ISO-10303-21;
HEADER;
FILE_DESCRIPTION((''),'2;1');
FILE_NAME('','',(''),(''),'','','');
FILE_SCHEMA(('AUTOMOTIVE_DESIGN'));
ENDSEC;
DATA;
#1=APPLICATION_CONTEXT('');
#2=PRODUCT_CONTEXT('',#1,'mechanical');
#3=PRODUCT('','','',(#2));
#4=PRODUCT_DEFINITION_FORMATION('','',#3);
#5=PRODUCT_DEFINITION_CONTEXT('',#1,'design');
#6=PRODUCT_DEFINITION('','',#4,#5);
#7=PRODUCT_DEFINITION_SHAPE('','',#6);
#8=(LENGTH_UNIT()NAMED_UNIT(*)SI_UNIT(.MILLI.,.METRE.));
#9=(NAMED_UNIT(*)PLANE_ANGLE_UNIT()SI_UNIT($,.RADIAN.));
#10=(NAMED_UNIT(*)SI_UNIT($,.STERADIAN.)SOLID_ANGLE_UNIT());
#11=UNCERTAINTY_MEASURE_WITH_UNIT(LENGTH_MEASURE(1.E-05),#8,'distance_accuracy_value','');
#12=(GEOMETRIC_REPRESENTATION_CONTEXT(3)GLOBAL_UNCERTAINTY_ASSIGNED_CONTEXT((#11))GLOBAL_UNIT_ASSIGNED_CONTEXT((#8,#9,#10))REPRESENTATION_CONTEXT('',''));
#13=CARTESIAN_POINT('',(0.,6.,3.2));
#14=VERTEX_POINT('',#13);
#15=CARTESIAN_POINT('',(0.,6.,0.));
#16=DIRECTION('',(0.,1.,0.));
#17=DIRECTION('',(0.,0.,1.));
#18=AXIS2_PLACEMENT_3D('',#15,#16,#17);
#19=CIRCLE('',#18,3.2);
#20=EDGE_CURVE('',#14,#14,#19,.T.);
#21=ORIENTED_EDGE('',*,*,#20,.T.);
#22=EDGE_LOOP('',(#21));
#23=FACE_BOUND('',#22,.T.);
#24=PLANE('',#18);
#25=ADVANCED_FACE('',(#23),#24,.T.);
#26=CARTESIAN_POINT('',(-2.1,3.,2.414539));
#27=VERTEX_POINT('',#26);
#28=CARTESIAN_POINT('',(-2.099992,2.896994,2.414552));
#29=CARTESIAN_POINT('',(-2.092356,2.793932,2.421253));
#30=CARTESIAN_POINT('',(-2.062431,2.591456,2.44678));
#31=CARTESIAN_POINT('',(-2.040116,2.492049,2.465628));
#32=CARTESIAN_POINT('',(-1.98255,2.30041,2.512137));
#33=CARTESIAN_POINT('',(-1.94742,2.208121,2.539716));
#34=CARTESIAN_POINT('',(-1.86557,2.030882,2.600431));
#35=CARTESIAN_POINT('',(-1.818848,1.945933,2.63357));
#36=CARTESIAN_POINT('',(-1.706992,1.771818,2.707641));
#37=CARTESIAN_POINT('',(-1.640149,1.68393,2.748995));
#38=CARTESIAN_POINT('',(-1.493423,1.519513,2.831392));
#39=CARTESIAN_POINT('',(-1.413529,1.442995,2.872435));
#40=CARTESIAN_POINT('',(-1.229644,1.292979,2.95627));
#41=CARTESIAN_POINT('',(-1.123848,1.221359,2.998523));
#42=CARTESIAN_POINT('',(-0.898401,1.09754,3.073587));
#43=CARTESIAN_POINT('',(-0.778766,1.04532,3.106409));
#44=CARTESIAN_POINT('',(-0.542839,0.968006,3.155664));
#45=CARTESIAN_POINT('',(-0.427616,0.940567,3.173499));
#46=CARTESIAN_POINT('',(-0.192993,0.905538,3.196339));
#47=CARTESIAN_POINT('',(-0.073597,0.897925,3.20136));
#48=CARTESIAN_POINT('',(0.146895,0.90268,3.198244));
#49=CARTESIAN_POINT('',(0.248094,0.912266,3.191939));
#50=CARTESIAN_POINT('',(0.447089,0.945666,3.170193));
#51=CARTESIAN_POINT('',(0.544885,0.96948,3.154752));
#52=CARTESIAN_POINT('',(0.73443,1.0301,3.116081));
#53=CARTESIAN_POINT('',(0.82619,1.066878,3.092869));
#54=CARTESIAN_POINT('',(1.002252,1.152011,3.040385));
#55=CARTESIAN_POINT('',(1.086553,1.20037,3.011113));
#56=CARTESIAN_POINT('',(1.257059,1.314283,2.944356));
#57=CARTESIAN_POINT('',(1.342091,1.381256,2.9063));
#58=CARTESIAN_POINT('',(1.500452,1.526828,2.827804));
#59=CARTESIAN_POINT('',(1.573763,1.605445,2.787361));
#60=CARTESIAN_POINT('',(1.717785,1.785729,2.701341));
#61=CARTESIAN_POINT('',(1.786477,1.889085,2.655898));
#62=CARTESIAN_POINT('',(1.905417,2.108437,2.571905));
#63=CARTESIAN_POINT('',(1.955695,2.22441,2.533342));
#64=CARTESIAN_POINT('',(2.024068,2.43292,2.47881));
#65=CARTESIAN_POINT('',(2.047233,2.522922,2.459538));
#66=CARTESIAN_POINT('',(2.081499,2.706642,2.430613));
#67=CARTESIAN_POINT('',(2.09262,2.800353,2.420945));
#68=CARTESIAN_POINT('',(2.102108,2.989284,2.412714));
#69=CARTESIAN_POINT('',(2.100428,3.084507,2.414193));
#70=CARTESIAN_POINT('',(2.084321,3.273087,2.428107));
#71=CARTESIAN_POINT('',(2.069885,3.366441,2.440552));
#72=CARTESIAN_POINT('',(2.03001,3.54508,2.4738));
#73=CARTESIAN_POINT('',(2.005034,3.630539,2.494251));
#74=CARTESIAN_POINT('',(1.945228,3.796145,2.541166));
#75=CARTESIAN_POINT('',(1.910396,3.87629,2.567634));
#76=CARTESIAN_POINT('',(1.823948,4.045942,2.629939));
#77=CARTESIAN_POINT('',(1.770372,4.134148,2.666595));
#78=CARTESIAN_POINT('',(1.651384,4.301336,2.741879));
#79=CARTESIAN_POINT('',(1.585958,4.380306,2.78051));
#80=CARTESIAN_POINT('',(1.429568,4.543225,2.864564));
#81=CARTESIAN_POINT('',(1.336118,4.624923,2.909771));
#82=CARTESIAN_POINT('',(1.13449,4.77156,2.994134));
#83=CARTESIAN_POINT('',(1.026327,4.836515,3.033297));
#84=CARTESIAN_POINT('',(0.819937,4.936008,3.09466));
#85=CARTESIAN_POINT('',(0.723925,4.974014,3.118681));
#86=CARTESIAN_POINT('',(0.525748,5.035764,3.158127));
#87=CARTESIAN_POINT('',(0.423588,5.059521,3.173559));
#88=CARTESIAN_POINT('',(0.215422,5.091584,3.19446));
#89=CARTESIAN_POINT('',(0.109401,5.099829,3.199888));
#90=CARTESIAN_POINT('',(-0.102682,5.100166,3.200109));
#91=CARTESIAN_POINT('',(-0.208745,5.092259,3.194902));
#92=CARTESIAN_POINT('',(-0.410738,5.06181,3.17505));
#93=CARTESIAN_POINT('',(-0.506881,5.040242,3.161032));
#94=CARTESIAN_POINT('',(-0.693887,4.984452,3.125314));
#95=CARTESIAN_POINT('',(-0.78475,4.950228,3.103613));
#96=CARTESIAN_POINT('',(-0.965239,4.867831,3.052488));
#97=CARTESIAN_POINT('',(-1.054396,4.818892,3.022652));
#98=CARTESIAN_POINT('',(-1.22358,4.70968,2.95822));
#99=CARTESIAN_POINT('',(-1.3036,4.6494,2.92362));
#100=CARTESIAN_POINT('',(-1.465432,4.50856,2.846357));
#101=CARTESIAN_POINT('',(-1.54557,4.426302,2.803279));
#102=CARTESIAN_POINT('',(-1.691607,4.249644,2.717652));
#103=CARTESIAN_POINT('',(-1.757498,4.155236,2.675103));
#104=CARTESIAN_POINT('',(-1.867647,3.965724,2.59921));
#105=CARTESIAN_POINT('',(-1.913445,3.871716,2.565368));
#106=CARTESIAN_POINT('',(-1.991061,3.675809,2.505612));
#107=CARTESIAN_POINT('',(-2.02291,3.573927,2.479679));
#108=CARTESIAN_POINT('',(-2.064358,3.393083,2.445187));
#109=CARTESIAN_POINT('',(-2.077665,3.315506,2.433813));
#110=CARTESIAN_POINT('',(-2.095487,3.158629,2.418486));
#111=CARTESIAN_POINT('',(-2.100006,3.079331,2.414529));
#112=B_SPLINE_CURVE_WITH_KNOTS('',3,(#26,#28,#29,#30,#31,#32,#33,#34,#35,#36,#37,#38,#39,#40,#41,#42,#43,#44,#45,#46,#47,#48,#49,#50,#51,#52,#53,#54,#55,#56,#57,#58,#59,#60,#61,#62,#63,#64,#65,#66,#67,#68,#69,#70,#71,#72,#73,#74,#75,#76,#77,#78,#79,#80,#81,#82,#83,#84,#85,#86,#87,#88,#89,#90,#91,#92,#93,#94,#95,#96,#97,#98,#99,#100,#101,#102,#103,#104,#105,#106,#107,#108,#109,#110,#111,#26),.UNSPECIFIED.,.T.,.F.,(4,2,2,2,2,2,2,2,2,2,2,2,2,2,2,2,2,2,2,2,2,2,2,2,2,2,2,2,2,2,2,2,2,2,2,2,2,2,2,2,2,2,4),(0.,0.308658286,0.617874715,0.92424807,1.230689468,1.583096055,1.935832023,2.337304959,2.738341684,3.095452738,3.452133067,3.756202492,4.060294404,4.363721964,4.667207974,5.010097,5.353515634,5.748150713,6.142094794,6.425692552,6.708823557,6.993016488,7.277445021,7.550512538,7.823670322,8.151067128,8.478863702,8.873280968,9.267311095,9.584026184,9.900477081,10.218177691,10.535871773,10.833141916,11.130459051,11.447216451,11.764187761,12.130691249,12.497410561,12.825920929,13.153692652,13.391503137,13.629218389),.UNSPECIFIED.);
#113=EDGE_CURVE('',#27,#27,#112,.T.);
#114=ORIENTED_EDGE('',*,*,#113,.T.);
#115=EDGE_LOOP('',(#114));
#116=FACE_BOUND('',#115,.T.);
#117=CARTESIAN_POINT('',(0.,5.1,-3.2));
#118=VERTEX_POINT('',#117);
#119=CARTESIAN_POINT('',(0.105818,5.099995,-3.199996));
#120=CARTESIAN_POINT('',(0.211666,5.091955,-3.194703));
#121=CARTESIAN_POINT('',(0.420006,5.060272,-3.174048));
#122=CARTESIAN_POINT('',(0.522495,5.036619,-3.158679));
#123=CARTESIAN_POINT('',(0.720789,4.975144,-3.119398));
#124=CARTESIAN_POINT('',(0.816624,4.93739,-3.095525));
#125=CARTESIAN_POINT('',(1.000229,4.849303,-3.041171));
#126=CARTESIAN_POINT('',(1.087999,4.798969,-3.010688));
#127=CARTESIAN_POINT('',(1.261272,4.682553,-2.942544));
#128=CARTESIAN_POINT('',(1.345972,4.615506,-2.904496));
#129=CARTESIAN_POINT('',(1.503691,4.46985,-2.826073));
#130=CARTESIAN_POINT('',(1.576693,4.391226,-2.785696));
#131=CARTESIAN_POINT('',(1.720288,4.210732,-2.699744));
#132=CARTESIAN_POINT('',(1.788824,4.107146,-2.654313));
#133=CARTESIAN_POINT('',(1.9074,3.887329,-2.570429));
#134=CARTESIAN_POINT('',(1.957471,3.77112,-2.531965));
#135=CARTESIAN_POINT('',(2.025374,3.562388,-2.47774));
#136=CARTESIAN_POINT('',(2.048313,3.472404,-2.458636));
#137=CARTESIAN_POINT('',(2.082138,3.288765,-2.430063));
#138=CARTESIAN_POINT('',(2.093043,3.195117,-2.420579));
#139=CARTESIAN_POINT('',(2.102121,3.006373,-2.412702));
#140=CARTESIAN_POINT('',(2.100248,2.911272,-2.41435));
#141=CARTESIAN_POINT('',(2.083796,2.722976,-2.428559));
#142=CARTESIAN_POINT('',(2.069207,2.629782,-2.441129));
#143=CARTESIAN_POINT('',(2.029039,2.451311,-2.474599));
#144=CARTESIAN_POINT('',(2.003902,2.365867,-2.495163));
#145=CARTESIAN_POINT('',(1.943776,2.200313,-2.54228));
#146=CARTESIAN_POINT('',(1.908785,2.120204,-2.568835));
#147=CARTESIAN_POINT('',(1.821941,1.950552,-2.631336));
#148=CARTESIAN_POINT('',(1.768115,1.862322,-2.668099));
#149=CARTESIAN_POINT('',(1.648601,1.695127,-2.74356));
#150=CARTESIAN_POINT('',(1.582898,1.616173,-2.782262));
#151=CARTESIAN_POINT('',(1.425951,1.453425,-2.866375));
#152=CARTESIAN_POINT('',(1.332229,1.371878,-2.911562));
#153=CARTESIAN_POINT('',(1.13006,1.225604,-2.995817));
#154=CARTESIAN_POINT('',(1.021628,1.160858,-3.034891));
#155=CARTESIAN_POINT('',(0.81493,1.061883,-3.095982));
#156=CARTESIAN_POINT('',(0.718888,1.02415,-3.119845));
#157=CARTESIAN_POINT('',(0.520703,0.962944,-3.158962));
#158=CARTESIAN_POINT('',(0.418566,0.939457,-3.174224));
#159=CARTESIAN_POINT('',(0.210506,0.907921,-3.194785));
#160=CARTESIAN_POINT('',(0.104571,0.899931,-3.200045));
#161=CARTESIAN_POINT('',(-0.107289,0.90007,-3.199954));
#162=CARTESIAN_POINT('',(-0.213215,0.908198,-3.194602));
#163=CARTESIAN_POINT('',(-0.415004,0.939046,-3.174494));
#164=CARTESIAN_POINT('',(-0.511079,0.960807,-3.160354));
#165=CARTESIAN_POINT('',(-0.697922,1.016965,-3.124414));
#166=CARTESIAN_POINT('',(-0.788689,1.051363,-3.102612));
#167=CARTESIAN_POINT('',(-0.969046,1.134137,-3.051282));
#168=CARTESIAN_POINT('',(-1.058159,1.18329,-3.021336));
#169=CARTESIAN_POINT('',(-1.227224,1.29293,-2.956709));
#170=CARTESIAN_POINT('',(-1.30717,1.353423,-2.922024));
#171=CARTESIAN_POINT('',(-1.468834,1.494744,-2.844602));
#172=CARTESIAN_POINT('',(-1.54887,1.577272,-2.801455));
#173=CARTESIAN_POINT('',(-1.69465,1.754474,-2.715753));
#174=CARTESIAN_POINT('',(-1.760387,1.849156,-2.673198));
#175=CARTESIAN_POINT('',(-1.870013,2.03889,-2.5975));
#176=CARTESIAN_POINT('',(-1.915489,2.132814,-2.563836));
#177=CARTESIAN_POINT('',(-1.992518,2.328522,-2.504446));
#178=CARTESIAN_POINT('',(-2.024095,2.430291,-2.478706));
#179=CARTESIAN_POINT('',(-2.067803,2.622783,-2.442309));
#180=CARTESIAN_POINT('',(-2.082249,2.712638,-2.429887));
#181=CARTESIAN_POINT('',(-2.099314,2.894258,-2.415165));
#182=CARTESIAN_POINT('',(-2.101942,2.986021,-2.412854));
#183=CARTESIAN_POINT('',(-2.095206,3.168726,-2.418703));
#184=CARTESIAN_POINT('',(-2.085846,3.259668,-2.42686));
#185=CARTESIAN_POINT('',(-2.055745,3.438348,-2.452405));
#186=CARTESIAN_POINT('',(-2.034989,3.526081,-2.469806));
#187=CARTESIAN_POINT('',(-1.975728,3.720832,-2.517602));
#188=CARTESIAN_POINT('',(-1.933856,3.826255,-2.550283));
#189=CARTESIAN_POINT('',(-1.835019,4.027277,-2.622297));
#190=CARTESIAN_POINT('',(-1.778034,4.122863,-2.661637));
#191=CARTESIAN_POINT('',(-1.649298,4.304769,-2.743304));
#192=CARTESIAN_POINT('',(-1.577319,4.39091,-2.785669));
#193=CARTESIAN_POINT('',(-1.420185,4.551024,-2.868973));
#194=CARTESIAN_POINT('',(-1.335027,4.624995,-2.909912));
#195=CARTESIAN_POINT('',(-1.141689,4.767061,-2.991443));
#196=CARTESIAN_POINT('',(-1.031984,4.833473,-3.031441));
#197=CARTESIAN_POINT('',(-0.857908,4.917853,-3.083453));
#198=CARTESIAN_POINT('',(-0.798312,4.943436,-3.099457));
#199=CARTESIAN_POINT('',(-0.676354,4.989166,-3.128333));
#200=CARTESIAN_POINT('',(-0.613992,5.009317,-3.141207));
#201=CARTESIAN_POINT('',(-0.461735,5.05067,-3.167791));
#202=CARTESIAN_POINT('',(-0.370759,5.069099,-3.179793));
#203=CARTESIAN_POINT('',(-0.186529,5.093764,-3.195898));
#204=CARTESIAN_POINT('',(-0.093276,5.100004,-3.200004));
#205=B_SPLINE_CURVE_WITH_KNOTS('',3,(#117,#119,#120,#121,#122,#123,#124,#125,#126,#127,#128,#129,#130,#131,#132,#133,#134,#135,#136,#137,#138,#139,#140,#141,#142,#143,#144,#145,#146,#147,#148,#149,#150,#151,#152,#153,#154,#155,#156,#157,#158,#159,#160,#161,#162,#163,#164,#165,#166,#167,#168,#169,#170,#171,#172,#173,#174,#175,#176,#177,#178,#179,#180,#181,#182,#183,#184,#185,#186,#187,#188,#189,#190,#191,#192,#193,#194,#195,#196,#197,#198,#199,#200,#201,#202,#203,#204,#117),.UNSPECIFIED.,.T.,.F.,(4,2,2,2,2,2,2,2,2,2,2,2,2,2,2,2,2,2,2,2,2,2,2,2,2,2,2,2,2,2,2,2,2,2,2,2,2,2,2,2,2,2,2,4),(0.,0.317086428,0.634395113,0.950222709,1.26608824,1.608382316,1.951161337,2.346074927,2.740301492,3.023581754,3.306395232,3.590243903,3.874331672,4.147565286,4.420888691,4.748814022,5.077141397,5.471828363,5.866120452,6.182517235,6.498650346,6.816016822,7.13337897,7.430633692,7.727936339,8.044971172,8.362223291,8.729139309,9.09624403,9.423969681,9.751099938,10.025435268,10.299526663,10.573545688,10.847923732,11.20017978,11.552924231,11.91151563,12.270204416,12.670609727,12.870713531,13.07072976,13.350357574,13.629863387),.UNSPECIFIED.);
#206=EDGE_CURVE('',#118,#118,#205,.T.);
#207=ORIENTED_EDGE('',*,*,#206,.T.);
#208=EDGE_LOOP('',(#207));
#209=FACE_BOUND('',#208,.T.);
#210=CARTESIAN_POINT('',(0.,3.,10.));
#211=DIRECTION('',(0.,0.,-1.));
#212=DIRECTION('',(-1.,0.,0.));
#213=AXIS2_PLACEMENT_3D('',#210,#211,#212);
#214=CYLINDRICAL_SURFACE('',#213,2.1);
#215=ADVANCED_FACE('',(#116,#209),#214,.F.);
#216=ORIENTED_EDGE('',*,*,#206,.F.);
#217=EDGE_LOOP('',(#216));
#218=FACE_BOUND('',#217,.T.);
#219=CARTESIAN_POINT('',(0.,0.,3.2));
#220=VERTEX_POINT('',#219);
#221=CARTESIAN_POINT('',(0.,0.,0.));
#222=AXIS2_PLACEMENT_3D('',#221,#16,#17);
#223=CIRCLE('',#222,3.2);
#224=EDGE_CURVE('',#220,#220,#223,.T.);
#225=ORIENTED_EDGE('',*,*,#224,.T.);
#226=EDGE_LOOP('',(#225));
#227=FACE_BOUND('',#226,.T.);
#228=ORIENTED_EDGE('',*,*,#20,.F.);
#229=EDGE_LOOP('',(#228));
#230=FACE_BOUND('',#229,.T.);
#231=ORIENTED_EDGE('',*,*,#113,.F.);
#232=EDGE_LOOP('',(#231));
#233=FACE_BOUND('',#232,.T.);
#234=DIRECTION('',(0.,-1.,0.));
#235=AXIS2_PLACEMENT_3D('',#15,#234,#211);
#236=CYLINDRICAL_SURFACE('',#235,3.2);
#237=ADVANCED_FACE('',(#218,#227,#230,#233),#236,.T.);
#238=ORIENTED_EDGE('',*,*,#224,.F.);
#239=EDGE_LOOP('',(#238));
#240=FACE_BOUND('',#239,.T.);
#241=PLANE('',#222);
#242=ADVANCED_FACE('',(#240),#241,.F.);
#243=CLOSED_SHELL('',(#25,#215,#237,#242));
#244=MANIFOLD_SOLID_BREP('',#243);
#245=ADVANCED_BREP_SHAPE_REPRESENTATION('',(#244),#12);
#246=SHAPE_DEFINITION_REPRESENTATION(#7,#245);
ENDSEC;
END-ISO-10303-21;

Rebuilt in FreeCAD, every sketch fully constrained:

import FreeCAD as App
import Part
import Sketcher

V = App.Vector

doc = App.newDocument("Part")
body = doc.addObject("PartDesign::Body", "Body")

# Sketch on XZ plane
sketch1 = doc.addObject("Sketcher::SketchObject", "Sketch")
body.addObject(sketch1)
sketch1.AttachmentSupport = (doc.XZ_Plane, [""])
sketch1.MapMode = "FlatFace"
sketch1.addGeometry(Part.Circle(V(0, 0, 0), V(0, 0, 1), 3.2), False)
sketch1.addConstraint(Sketcher.Constraint("Coincident", 0, 3, -1, 1))
sketch1.addConstraint(Sketcher.Constraint("Diameter", 0, 6.4))
pad1 = doc.addObject("PartDesign::Pad", "Pad")
body.addObject(pad1)
pad1.Profile = sketch1
pad1.Length = 6
pad1.Reversed = True

# Sketch on XY plane
sketch2 = doc.addObject("Sketcher::SketchObject", "Sketch001")
body.addObject(sketch2)
sketch2.AttachmentSupport = (doc.XY_Plane, [""])
sketch2.MapMode = "FlatFace"
sketch2.addGeometry(Part.Circle(V(0, 3, 0), V(0, 0, 1), 2.1), False)
sketch2.addConstraint(Sketcher.Constraint("PointOnObject", 0, 3, -2))
sketch2.addConstraint(Sketcher.Constraint("Diameter", 0, 4.2))
sketch2.addConstraint(Sketcher.Constraint("DistanceY", -1, 1, 0, 3, 3.0))
pocket1 = doc.addObject("PartDesign::Pocket", "Pocket")
body.addObject(pocket1)
pocket1.Profile = sketch2
pocket1.Type = "ThroughAll"
pocket1.Midplane = True

doc.recompute()
